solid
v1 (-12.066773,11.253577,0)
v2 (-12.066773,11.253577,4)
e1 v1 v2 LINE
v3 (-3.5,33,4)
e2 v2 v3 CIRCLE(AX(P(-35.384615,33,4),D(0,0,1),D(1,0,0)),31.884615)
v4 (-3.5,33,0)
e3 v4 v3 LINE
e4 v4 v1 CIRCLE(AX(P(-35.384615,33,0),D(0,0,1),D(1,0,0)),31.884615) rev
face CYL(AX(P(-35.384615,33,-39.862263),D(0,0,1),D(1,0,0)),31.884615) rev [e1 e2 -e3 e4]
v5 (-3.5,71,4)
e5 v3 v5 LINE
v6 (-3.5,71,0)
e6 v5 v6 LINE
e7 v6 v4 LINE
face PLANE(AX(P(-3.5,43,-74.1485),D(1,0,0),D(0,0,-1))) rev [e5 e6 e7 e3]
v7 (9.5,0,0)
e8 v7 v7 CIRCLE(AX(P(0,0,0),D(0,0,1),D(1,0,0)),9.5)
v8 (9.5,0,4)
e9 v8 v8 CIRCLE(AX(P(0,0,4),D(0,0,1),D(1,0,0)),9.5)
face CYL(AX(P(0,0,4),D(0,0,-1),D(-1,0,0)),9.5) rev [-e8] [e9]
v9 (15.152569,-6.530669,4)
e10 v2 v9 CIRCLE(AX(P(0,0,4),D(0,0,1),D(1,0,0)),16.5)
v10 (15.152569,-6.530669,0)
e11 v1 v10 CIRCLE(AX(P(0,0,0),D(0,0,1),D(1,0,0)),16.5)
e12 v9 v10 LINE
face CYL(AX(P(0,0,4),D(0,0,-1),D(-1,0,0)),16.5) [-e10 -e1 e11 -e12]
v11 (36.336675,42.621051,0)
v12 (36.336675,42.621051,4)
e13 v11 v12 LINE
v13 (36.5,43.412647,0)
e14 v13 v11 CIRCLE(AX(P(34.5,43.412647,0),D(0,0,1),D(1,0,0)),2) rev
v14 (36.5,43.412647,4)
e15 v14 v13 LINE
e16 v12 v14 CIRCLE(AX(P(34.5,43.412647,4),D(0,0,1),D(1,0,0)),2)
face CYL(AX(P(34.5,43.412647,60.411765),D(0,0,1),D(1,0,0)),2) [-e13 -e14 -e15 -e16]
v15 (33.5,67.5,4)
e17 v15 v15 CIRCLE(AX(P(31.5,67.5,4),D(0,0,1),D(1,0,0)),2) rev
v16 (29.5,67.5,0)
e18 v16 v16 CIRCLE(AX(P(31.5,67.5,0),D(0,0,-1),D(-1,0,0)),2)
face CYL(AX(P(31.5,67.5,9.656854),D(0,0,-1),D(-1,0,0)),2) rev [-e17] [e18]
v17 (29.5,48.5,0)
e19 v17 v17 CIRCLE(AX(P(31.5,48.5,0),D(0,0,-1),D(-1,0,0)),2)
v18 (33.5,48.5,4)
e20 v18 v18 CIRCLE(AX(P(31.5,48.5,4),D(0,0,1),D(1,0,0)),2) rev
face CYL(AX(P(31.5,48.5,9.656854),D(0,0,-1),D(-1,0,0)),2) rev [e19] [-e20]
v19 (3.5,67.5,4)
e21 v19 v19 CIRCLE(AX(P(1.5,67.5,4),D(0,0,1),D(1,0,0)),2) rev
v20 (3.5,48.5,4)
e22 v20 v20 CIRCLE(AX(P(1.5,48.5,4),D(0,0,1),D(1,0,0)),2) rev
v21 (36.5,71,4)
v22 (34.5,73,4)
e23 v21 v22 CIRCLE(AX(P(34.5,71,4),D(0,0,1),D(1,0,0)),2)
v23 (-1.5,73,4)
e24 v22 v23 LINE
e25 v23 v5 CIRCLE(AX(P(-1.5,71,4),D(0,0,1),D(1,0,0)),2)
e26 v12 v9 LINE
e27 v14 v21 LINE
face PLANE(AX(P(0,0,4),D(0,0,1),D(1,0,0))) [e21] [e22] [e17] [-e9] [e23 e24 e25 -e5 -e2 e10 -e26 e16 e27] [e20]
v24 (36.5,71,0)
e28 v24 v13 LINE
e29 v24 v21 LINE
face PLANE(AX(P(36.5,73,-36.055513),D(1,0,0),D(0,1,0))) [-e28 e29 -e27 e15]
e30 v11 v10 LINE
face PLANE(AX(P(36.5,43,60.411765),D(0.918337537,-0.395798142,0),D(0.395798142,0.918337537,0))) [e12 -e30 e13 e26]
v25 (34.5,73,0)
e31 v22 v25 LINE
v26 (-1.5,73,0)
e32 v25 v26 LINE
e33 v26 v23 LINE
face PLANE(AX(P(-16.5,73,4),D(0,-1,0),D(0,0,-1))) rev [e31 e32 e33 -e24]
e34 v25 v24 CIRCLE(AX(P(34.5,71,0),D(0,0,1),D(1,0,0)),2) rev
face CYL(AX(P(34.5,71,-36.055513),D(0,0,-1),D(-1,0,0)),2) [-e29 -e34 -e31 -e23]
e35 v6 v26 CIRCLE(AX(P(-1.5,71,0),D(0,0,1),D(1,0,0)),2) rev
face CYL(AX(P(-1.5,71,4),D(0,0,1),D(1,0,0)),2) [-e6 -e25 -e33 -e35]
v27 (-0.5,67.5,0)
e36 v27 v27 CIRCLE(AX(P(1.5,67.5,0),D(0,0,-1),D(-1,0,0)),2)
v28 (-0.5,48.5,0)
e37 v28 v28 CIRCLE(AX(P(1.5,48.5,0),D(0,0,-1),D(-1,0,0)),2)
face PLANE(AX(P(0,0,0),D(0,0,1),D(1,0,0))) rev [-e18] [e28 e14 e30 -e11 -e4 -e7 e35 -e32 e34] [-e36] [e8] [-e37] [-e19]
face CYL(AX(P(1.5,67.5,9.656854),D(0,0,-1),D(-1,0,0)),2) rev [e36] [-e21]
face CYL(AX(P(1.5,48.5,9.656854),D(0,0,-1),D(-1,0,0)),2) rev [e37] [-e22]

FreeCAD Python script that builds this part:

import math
import FreeCAD as App
import Part
import Sketcher

V = App.Vector
Q = App.Units.Quantity


def edges_at(feature, points):
    """Names of the edges that pass closest to the given points."""
    edges = feature.Shape.Edges
    near = lambda p: min(range(len(edges)), key=lambda i: edges[i].distToShape(Part.Vertex(*p))[0])
    return sorted({f"Edge{near(p) + 1}" for p in points})

doc = App.newDocument("Part")
params = doc.addObject("Spreadsheet::Sheet", "Params")
for row, (alias, value) in enumerate([
    ("sketch1_diameter", "19 mm"),
    ("sketch1_radius", "16.5 mm"),
    ("sketch1_height", "73 mm"),
    ("pad1_length", "4 mm"),
    ("sketch2_width", "20 mm"),
    ("sketch2_height", "30 mm"),
    ("pad2_length", "4 mm"),
    ("sketch3_radius", "16.5 mm"),
    ("sketch3_width", "13 mm"),
    ("sketch3_height", "30 mm"),
    ("sketch3_height2", "73 mm"),
    ("pocket1_length", "4 mm"),
    ("sketch4_width", "20 mm"),
    ("pad3_length", "4 mm"),
    ("sketch5_radius", "16.5 mm"),
    ("sketch5_height", "10 mm"),
    ("pocket2_length", "4 mm"),
    ("sketch6_diameter", "4 mm"),
    ("pocket3_length", "4 mm"),
    ("fillet_radius", "2 mm"),
], start=1):
    params.set(f"A{row}", alias)
    params.set(f"B{row}", "=" + value)
    params.setAlias(f"B{row}", alias)

body = doc.addObject("PartDesign::Body", "Body")

# Sketch on XY plane
sketch1 = body.newObject("Sketcher::SketchObject", "Sketch")
sketch1.AttachmentSupport = (doc.getObject("XY_Plane"), [""])
sketch1.MapMode = "FlatFace"
sketch1.addGeometry(Part.LineSegment(V(-16, 73, 0), V(-16, 0, 0)), False)
sketch1.addGeometry(Part.ArcOfCircle(Part.Circle(V(0, 0, 0), V(0, 0, 1), 16), math.radians(180), math.radians(360)), False)
sketch1.addGeometry(Part.LineSegment(V(16, 0, 0), V(16, 73, 0)), False)
sketch1.addGeometry(Part.LineSegment(V(16, 73, 0), V(-16, 73, 0)), False)
sketch1.addGeometry(Part.Circle(V(0, 0, 0), V(0, 0, 1), 10), False)
sketch1.addConstraint(Sketcher.Constraint("Tangent", 0, 2, 1, 1))
sketch1.addConstraint(Sketcher.Constraint("Tangent", 1, 2, 2, 1))
sketch1.addConstraint(Sketcher.Constraint("Coincident", 2, 2, 3, 1))
sketch1.addConstraint(Sketcher.Constraint("Coincident", 3, 2, 0, 1))
sketch1.addConstraint(Sketcher.Constraint("Vertical", 0))
sketch1.addConstraint(Sketcher.Constraint("Vertical", 2))
sketch1.addConstraint(Sketcher.Constraint("Horizontal", 3))
sketch1.addConstraint(Sketcher.Constraint("Coincident", 1, 3, -1, 1))
sketch1.addConstraint(Sketcher.Constraint("Coincident", 4, 3, -1, 1))
sketch1.addConstraint(Sketcher.Constraint("Diameter", 4, Q("19 mm")))
sketch1.addConstraint(Sketcher.Constraint("Radius", 1, Q("16.5 mm")))
sketch1.addConstraint(Sketcher.Constraint("DistanceY", 0, 2, 0, 1, Q("73 mm")))
sketch1.setExpression("Constraints[9]", "Params.sketch1_diameter")
sketch1.setExpression("Constraints[10]", "Params.sketch1_radius")
sketch1.setExpression("Constraints[11]", "Params.sketch1_height")
pad1 = body.newObject("PartDesign::Pad", "Pad")
pad1.Profile = sketch1
pad1.setExpression("Length", "Params.pad1_length")

# Sketch on XY plane
sketch2 = body.newObject("Sketcher::SketchObject", "Sketch001")
sketch2.AttachmentSupport = (doc.getObject("XY_Plane"), [""])
sketch2.MapMode = "FlatFace"
sketch2.AttachmentOffset = App.Placement(V(0, 0, 4), App.Rotation())
sketch2.addGeometry(Part.LineSegment(V(16, 73, 0), V(16, 43, 0)), False)
sketch2.addGeometry(Part.LineSegment(V(16, 43, 0), V(36, 43, 0)), False)
sketch2.addGeometry(Part.LineSegment(V(36, 43, 0), V(36, 73, 0)), False)
sketch2.addGeometry(Part.LineSegment(V(36, 73, 0), V(16, 73, 0)), False)
sketch2.addConstraint(Sketcher.Constraint("Coincident", 0, 2, 1, 1))
sketch2.addConstraint(Sketcher.Constraint("Coincident", 1, 2, 2, 1))
sketch2.addConstraint(Sketcher.Constraint("Coincident", 2, 2, 3, 1))
sketch2.addConstraint(Sketcher.Constraint("Coincident", 3, 2, 0, 1))
sketch2.addConstraint(Sketcher.Constraint("Vertical", 0))
sketch2.addConstraint(Sketcher.Constraint("Horizontal", 1))
sketch2.addConstraint(Sketcher.Constraint("Vertical", 2))
sketch2.addConstraint(Sketcher.Constraint("Horizontal", 3))
sketch2.addConstraint(Sketcher.Constraint("DistanceX", 1, 1, 1, 2, Q("20 mm")))
sketch2.addConstraint(Sketcher.Constraint("DistanceY", 0, 2, 0, 1, Q("30 mm")))
sketch2.addConstraint(Sketcher.Constraint("DistanceY", -1, 1, 0, 2, Q("43 mm")))
sketch2.addConstraint(Sketcher.Constraint("DistanceX", -1, 1, 0, 2, Q("16.5 mm")))
sketch2.setExpression("Constraints[8]", "Params.sketch2_width")
sketch2.setExpression("Constraints[9]", "Params.sketch2_height")
pad2 = body.newObject("PartDesign::Pad", "Pad001")
pad2.Profile = sketch2
pad2.setExpression("Length", "Params.pad2_length")
pad2.Reversed = True

# Sketch on XY plane
sketch3 = body.newObject("Sketcher::SketchObject", "Sketch002")
sketch3.AttachmentSupport = (doc.getObject("XY_Plane"), [""])
sketch3.MapMode = "FlatFace"
sketch3.addGeometry(Part.LineSegment(V(-16, 5, 0), V(-4, 43, 0)), False)
sketch3.addGeometry(Part.LineSegment(V(-4, 43, 0), V(-4, 73, 0)), False)
sketch3.addGeometry(Part.LineSegment(V(-4, 73, 0), V(-16, 73, 0)), False)
sketch3.addGeometry(Part.LineSegment(V(-16, 73, 0), V(-16, 0, 0)), False)
sketch3.addGeometry(Part.ArcOfCircle(Part.Circle(V(0, 0, 0), V(0, 0, 1), 17), math.radians(162.17), math.radians(180)), False)
sketch3.addConstraint(Sketcher.Constraint("Coincident", 0, 2, 1, 1))
sketch3.addConstraint(Sketcher.Constraint("Coincident", 1, 2, 2, 1))
sketch3.addConstraint(Sketcher.Constraint("Coincident", 2, 2, 3, 1))
sketch3.addConstraint(Sketcher.Constraint("Tangent", 3, 2, 4, 2))
sketch3.addConstraint(Sketcher.Constraint("Tangent", 4, 1, 0, 1))
sketch3.addConstraint(Sketcher.Constraint("Vertical", 1))
sketch3.addConstraint(Sketcher.Constraint("Horizontal", 2))
sketch3.addConstraint(Sketcher.Constraint("Vertical", 3))
sketch3.addConstraint(Sketcher.Constraint("Coincident", 4, 3, -1, 1))
sketch3.addConstraint(Sketcher.Constraint("Radius", 4, Q("16.5 mm")))
sketch3.addConstraint(Sketcher.Constraint("DistanceX", 2, 2, 2, 1, Q("13 mm")))
sketch3.addConstraint(Sketcher.Constraint("DistanceY", 1, 1, 1, 2, Q("30 mm")))
sketch3.addConstraint(Sketcher.Constraint("DistanceY", 3, 2, 3, 1, Q("73 mm")))
sketch3.setExpression("Constraints[9]", "Params.sketch3_radius")
sketch3.setExpression("Constraints[10]", "Params.sketch3_width")
sketch3.setExpression("Constraints[11]", "Params.sketch3_height")
sketch3.setExpression("Constraints[12]", "Params.sketch3_height2")
pocket1 = body.newObject("PartDesign::Pocket", "Pocket")
pocket1.Profile = sketch3
pocket1.setExpression("Length", "Params.pocket1_length")
pocket1.Reversed = True

# Sketch on XY plane
sketch4 = body.newObject("Sketcher::SketchObject", "Sketch003")
sketch4.AttachmentSupport = (doc.getObject("XY_Plane"), [""])
sketch4.MapMode = "FlatFace"
sketch4.addGeometry(Part.LineSegment(V(36, 43, 0), V(15, -7, 0)), False)
sketch4.addGeometry(Part.LineSegment(V(15, -7, 0), V(10, 0, 0)), False)
sketch4.addGeometry(Part.LineSegment(V(10, 0, 0), V(16, 43, 0)), False)
sketch4.addGeometry(Part.LineSegment(V(16, 43, 0), V(36, 43, 0)), False)
sketch4.addConstraint(Sketcher.Constraint("Coincident", 0, 2, 1, 1))
sketch4.addConstraint(Sketcher.Constraint("Coincident", 1, 2, 2, 1))
sketch4.addConstraint(Sketcher.Constraint("Coincident", 2, 2, 3, 1))
sketch4.addConstraint(Sketcher.Constraint("Coincident", 3, 2, 0, 1))
sketch4.addConstraint(Sketcher.Constraint("Horizontal", 3))
sketch4.addConstraint(Sketcher.Constraint("PointOnObject", 1, 2, -1))
sketch4.addConstraint(Sketcher.Constraint("DistanceX", 3, 1, 3, 2, Q("20 mm")))
sketch4.addConstraint(Sketcher.Constraint("DistanceY", -1, 1, 2, 2, Q("43 mm")))
sketch4.addConstraint(Sketcher.Constraint("DistanceX", 1, 2, 2, 2, Q("7 mm")))
sketch4.addConstraint(Sketcher.Constraint("DistanceX", -1, 1, 1, 2, Q("9.5 mm")))
sketch4.addConstraint(Sketcher.Constraint("DistanceX", -1, 1, 0, 2, Q("15.152569 mm")))
sketch4.addConstraint(Sketcher.Constraint("DistanceY", 0, 2, -1, 1, Q("6.530669 mm")))
sketch4.setExpression("Constraints[6]", "Params.sketch4_width")
pad3 = body.newObject("PartDesign::Pad", "Pad002")
pad3.Profile = sketch4
pad3.setExpression("Length", "Params.pad3_length")

# Sketch on XY plane
sketch5 = body.newObject("Sketcher::SketchObject", "Sketch004")
sketch5.AttachmentSupport = (doc.getObject("XY_Plane"), [""])
sketch5.MapMode = "FlatFace"
sketch5.addGeometry(Part.LineSegment(V(-4, 33, 0), V(-4, 43, 0)), False)
sketch5.addGeometry(Part.LineSegment(V(-4, 43, 0), V(-16, 5, 0)), False)
sketch5.addGeometry(Part.ArcOfCircle(Part.Circle(V(0, 0, 0), V(0, 0, 1), 16), math.radians(137), math.radians(162)), False)
sketch5.addGeometry(Part.ArcOfCircle(Part.Circle(V(-35, 33, 0), V(0, 0, 1), 32), math.radians(-43), math.radians(0)), False)
sketch5.addConstraint(Sketcher.Constraint("Coincident", 0, 2, 1, 1))
sketch5.addConstraint(Sketcher.Constraint("Tangent", 1, 2, 2, 2))
sketch5.addConstraint(Sketcher.Constraint("Tangent", 2, 1, 3, 1))
sketch5.addConstraint(Sketcher.Constraint("Tangent", 3, 2, 0, 1))
sketch5.addConstraint(Sketcher.Constraint("Vertical", 0))
sketch5.addConstraint(Sketcher.Constraint("Coincident", 2, 3, -1, 1))
sketch5.addConstraint(Sketcher.Constraint("Radius", 2, Q("16.5 mm")))
sketch5.addConstraint(Sketcher.Constraint("DistanceY", 0, 1, 0, 2, Q("10 mm")))
sketch5.addConstraint(Sketcher.Constraint("DistanceY", -1, 1, 3, 3, Q("33 mm")))
sketch5.addConstraint(Sketcher.Constraint("DistanceX", 0, 2, -1, 1, Q("3.5 mm")))
sketch5.setExpression("Constraints[6]", "Params.sketch5_radius")
sketch5.setExpression("Constraints[7]", "Params.sketch5_height")
pocket2 = body.newObject("PartDesign::Pocket", "Pocket001")
pocket2.Profile = sketch5
pocket2.setExpression("Length", "Params.pocket2_length")
pocket2.Reversed = True

# Sketch on XY plane
sketch6 = body.newObject("Sketcher::SketchObject", "Sketch005")
sketch6.AttachmentSupport = (doc.getObject("XY_Plane"), [""])
sketch6.MapMode = "FlatFace"
sketch6.addGeometry(Part.Circle(V(31.5, 67.5, 0), V(0, 0, 1), 2), False)
sketch6.addGeometry(Part.Circle(V(1.5, 67.5, 0), V(0, 0, 1), 2), False)
sketch6.addGeometry(Part.Circle(V(31.5, 48.5, 0), V(0, 0, 1), 2), False)
sketch6.addGeometry(Part.Circle(V(1.5, 48.5, 0), V(0, 0, 1), 2), False)
sketch6.addConstraint(Sketcher.Constraint("Equal", 0, 1))
sketch6.addConstraint(Sketcher.Constraint("Equal", 1, 2))
sketch6.addConstraint(Sketcher.Constraint("Equal", 2, 3))
sketch6.addConstraint(Sketcher.Constraint("Horizontal", 0, 3, 1, 3))
sketch6.addConstraint(Sketcher.Constraint("Horizontal", 2, 3, 3, 3))
sketch6.addConstraint(Sketcher.Constraint("Vertical", 0, 3, 2, 3))
sketch6.addConstraint(Sketcher.Constraint("Vertical", 1, 3, 3, 3))
sketch6.addConstraint(Sketcher.Constraint("Diameter", 0, Q("4 mm")))
sketch6.addConstraint(Sketcher.Constraint("DistanceX", 1, 3, 0, 3, Q("30 mm")))
sketch6.addConstraint(Sketcher.Constraint("DistanceY", 2, 3, 0, 3, Q("19 mm")))
sketch6.addConstraint(Sketcher.Constraint("DistanceX", -1, 1, 0, 3, Q("31.5 mm")))
sketch6.addConstraint(Sketcher.Constraint("DistanceY", -1, 1, 0, 3, Q("67.5 mm")))
sketch6.setExpression("Constraints[7]", "Params.sketch6_diameter")
pocket3 = body.newObject("PartDesign::Pocket", "Pocket002")
pocket3.Profile = sketch6
pocket3.setExpression("Length", "Params.pocket3_length")
pocket3.Reversed = True
doc.recompute()

fillet = body.newObject("PartDesign::Fillet", "Fillet")
fillet.Base = (pocket3, edges_at(pocket3, [(36.5, 73, 2), (36.5, 43, 2), (-3.5, 73, 2)]))
fillet.setExpression("Radius", "Params.fillet_radius")

doc.recompute()
